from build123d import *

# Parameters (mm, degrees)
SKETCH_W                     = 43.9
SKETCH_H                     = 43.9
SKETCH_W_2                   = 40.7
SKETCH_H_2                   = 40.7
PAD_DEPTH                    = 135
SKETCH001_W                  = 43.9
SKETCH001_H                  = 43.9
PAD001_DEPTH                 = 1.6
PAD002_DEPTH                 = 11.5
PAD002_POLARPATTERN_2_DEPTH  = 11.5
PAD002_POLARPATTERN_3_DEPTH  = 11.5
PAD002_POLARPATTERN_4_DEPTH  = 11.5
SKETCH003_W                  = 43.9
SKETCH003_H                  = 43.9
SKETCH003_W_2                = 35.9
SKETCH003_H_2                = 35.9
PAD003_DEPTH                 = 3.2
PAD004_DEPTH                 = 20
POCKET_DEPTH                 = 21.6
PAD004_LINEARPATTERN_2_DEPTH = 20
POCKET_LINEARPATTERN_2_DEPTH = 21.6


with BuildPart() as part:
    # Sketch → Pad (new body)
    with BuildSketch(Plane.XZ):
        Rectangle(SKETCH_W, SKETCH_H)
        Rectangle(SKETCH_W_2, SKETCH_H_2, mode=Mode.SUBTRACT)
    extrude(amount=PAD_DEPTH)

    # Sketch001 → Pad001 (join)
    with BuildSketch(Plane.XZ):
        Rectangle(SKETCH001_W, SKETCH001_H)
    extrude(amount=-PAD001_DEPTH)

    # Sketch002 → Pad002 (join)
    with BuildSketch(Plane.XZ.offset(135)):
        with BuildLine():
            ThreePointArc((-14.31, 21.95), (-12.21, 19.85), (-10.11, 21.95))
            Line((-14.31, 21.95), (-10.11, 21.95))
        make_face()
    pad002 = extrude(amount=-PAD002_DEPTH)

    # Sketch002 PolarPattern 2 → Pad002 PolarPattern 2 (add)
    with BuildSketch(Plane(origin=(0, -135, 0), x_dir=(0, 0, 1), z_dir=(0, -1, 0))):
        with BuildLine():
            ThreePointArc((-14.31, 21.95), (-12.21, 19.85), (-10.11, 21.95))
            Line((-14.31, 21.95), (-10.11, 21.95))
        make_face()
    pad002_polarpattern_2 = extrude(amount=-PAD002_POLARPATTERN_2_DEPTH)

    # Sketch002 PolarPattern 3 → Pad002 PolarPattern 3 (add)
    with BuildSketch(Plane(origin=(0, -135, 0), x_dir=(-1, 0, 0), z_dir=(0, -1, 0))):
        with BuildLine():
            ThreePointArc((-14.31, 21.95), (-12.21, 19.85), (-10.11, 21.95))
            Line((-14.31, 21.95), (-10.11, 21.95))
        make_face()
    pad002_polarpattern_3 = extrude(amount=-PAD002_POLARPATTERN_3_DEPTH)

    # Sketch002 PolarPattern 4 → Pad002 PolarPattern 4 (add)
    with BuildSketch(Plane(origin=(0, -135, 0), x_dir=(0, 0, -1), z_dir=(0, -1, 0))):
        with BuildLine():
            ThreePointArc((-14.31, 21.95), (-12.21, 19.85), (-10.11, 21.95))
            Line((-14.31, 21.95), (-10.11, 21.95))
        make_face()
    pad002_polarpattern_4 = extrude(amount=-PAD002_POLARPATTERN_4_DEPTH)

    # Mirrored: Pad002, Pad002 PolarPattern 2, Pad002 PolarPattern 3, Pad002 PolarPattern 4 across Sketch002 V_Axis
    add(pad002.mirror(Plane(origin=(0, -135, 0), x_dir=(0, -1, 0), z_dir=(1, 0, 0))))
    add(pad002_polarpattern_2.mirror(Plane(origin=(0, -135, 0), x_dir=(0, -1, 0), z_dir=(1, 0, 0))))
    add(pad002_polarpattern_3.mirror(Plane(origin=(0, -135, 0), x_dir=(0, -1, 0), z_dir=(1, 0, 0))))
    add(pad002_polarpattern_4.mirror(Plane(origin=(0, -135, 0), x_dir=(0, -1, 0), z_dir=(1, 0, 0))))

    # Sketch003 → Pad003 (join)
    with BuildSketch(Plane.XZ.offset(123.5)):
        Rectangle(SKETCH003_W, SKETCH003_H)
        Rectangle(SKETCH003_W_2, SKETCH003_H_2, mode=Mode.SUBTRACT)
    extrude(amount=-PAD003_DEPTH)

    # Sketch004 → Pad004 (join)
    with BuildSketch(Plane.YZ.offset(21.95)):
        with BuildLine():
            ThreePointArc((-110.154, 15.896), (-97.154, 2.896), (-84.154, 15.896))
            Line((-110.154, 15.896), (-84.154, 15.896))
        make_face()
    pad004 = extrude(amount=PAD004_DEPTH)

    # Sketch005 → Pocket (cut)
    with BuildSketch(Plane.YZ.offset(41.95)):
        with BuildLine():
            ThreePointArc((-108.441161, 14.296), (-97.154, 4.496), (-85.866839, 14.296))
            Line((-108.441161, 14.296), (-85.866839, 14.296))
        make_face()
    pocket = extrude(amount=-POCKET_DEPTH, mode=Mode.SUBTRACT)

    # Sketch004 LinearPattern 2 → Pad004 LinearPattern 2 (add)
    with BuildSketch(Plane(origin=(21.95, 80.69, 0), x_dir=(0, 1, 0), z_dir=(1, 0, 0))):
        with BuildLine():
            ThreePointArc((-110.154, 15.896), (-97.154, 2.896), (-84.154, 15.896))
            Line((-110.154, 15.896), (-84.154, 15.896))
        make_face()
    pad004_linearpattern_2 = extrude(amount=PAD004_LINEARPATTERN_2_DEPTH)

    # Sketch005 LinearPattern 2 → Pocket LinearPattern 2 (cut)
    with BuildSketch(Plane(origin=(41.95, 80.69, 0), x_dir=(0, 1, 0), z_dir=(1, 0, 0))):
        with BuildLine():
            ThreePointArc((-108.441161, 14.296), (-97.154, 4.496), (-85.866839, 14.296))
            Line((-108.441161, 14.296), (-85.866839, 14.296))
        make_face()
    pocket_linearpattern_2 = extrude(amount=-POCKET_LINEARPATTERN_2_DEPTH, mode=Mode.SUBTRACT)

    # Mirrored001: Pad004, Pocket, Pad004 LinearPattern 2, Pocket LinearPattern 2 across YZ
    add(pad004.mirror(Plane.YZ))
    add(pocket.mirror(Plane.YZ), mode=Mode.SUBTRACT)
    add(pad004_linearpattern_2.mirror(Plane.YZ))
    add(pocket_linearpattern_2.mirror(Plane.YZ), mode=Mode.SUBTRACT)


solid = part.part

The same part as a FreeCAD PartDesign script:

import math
import FreeCAD as App
import Part
import Sketcher
from FreeCAD import Vector
Q = App.Units.Quantity


def add_polygon(sketch, points):
    """Adds a closed chain of lines whose ends are joined by coincident constraints."""
    first, n = sketch.GeometryCount, len(points)
    for a, b in zip(points, points[1:] + points[:1]):
        sketch.addGeometry(Part.LineSegment(App.Vector(*a, 0), App.Vector(*b, 0)), False)
    for i in range(n):
        sketch.addConstraint(Sketcher.Constraint("Coincident", first + i, 2, first + (i + 1) % n, 1))

doc = App.newDocument("Part")
body = doc.addObject("PartDesign::Body", "Body")

sketch1 = doc.addObject("Sketcher::SketchObject", "Sketch")
body.addObject(sketch1)
sketch1.AttachmentSupport = (doc.XZ_Plane, [""])
sketch1.MapMode = "FlatFace"
add_polygon(sketch1, [(-22, 22), (-22, -22), (22, -22), (22, 22)])
add_polygon(sketch1, [(20, -20), (-20, -20), (-20, 20), (20, 20)])
sketch1.addConstraint(Sketcher.Constraint("Vertical", 0))
sketch1.addConstraint(Sketcher.Constraint("Horizontal", 1))
sketch1.addConstraint(Sketcher.Constraint("Vertical", 2))
sketch1.addConstraint(Sketcher.Constraint("Horizontal", 3))
sketch1.addConstraint(Sketcher.Constraint("Horizontal", 4))
sketch1.addConstraint(Sketcher.Constraint("Vertical", 5))
sketch1.addConstraint(Sketcher.Constraint("Horizontal", 6))
sketch1.addConstraint(Sketcher.Constraint("Vertical", 7))
sketch1.addConstraint(Sketcher.Constraint("Symmetric", 0, 2, 2, 2, -1, 1))
sketch1.addConstraint(Sketcher.Constraint("Symmetric", 4, 2, 6, 2, -1, 1))
sketch1.addConstraint(Sketcher.Constraint("Equal", 3, 0))
sketch1.addConstraint(Sketcher.Constraint("Equal", 6, 5))
sketch1.addConstraint(Sketcher.Constraint("DistanceX", 1, 1, 1, 2, Q("43.9 mm")))
sketch1.addConstraint(Sketcher.Constraint("DistanceX", 4, 2, 4, 1, Q("40.7 mm")))
pad1 = doc.addObject("PartDesign::Pad", "Pad")
body.addObject(pad1)
pad1.Profile = sketch1
pad1.Length = 135

sketch2 = doc.addObject("Sketcher::SketchObject", "Sketch001")
body.addObject(sketch2)
sketch2.AttachmentSupport = (doc.XZ_Plane, [""])
sketch2.MapMode = "FlatFace"
add_polygon(sketch2, [(-22, 22), (-22, -22), (22, -22), (22, 22)])
sketch2.addConstraint(Sketcher.Constraint("Vertical", 0))
sketch2.addConstraint(Sketcher.Constraint("Horizontal", 1))
sketch2.addConstraint(Sketcher.Constraint("Vertical", 2))
sketch2.addConstraint(Sketcher.Constraint("Horizontal", 3))
sketch2.addConstraint(Sketcher.Constraint("Symmetric", 0, 2, 2, 2, -1, 1))
sketch2.addConstraint(Sketcher.Constraint("Equal", 3, 0))
sketch2.addConstraint(Sketcher.Constraint("DistanceX", 1, 1, 1, 2, Q("43.9 mm")))
pad2 = doc.addObject("PartDesign::Pad", "Pad001")
body.addObject(pad2)
pad2.Profile = sketch2
pad2.Length = 1.6
pad2.Reversed = True

sketch3 = doc.addObject("Sketcher::SketchObject", "Sketch002")
body.addObject(sketch3)
sketch3.AttachmentSupport = (doc.XZ_Plane, [""])
sketch3.MapMode = "FlatFace"
sketch3.AttachmentOffset = App.Placement(Vector(0, 0, 135), App.Rotation())
sketch3.addGeometry(Part.ArcOfCircle(Part.Circle(Vector(-12.2, 21.9, 0), Vector(0, 0, 1), 2.1), math.radians(180), math.radians(360)), False)
sketch3.addGeometry(Part.LineSegment(Vector(-10.1, 21.9, 0), Vector(-14.3, 21.9, 0)), False)
sketch3.addConstraint(Sketcher.Constraint("Coincident", 0, 1, 1, 2))
sketch3.addConstraint(Sketcher.Constraint("Coincident", 1, 1, 0, 2))
sketch3.addConstraint(Sketcher.Constraint("Horizontal", 1))
sketch3.addConstraint(Sketcher.Constraint("Radius", 0, Q("2.1 mm")))
sketch3.addConstraint(Sketcher.Constraint("DistanceX", 0, 3, -1, 1, Q("12.21 mm")))
sketch3.addConstraint(Sketcher.Constraint("DistanceY", -1, 1, 0, 3, Q("21.95 mm")))
sketch3.addConstraint(Sketcher.Constraint("DistanceY", -1, 1, 0, 1, Q("21.95 mm")))
pad3 = doc.addObject("PartDesign::Pad", "Pad002")
body.addObject(pad3)
pad3.Profile = sketch3
pad3.Length = 11.5
pad3.Reversed = True

sketch4 = doc.addObject("Sketcher::SketchObject", "Sketch003")
body.addObject(sketch4)
sketch4.AttachmentSupport = (doc.XZ_Plane, [""])
sketch4.MapMode = "FlatFace"
sketch4.AttachmentOffset = App.Placement(Vector(0, 0, 135), App.Rotation())
sketch4.addGeometry(Part.ArcOfCircle(Part.Circle(Vector(-21.9, -12.2, 0), Vector(0, 0, 1), 2.1), math.radians(-90), math.radians(90)), False)
sketch4.addGeometry(Part.LineSegment(Vector(-21.9, -10.1, 0), Vector(-21.9, -14.3, 0)), False)
sketch4.addConstraint(Sketcher.Constraint("Coincident", 0, 1, 1, 2))
sketch4.addConstraint(Sketcher.Constraint("Coincident", 1, 1, 0, 2))
sketch4.addConstraint(Sketcher.Constraint("Vertical", 1))
sketch4.addConstraint(Sketcher.Constraint("Radius", 0, Q("2.1 mm")))
sketch4.addConstraint(Sketcher.Constraint("DistanceX", 0, 3, -1, 1, Q("21.95 mm")))
sketch4.addConstraint(Sketcher.Constraint("DistanceY", 0, 3, -1, 1, Q("12.21 mm")))
sketch4.addConstraint(Sketcher.Constraint("DistanceX", 0, 1, -1, 1, Q("21.95 mm")))
pad4 = doc.addObject("PartDesign::Pad", "Pad003")
body.addObject(pad4)
pad4.Profile = sketch4
pad4.Length = 11.5
pad4.Reversed = True

sketch5 = doc.addObject("Sketcher::SketchObject", "Sketch004")
body.addObject(sketch5)
sketch5.AttachmentSupport = (doc.XZ_Plane, [""])
sketch5.MapMode = "FlatFace"
sketch5.AttachmentOffset = App.Placement(Vector(0, 0, 135), App.Rotation())
sketch5.addGeometry(Part.ArcOfCircle(Part.Circle(Vector(12.2, -21.9, 0), Vector(0, 0, 1), 2.1), math.radians(0), math.radians(180)), False)
sketch5.addGeometry(Part.LineSegment(Vector(10.1, -21.9, 0), Vector(14.3, -21.9, 0)), False)
sketch5.addConstraint(Sketcher.Constraint("Coincident", 0, 1, 1, 2))
sketch5.addConstraint(Sketcher.Constraint("Coincident", 1, 1, 0, 2))
sketch5.addConstraint(Sketcher.Constraint("Horizontal", 1))
sketch5.addConstraint(Sketcher.Constraint("Radius", 0, Q("2.1 mm")))
sketch5.addConstraint(Sketcher.Constraint("DistanceX", -1, 1, 0, 3, Q("12.21 mm")))
sketch5.addConstraint(Sketcher.Constraint("DistanceY", 0, 3, -1, 1, Q("21.95 mm")))
sketch5.addConstraint(Sketcher.Constraint("DistanceY", 0, 1, -1, 1, Q("21.95 mm")))
pad5 = doc.addObject("PartDesign::Pad", "Pad004")
body.addObject(pad5)
pad5.Profile = sketch5
pad5.Length = 11.5
pad5.Reversed = True

sketch6 = doc.addObject("Sketcher::SketchObject", "Sketch005")
body.addObject(sketch6)
sketch6.AttachmentSupport = (doc.XZ_Plane, [""])
sketch6.MapMode = "FlatFace"
sketch6.AttachmentOffset = App.Placement(Vector(0, 0, 135), App.Rotation())
sketch6.addGeometry(Part.ArcOfCircle(Part.Circle(Vector(21.9, 12.2, 0), Vector(0, 0, 1), 2.1), math.radians(90), math.radians(270)), False)
sketch6.addGeometry(Part.LineSegment(Vector(21.9, 10.1, 0), Vector(21.9, 14.3, 0)), False)
sketch6.addConstraint(Sketcher.Constraint("Coincident", 0, 1, 1, 2))
sketch6.addConstraint(Sketcher.Constraint("Coincident", 1, 1, 0, 2))
sketch6.addConstraint(Sketcher.Constraint("Vertical", 1))
sketch6.addConstraint(Sketcher.Constraint("Radius", 0, Q("2.1 mm")))
sketch6.addConstraint(Sketcher.Constraint("DistanceX", -1, 1, 0, 3, Q("21.95 mm")))
sketch6.addConstraint(Sketcher.Constraint("DistanceY", -1, 1, 0, 3, Q("12.21 mm")))
sketch6.addConstraint(Sketcher.Constraint("DistanceX", -1, 1, 0, 1, Q("21.95 mm")))
pad6 = doc.addObject("PartDesign::Pad", "Pad005")
body.addObject(pad6)
pad6.Profile = sketch6
pad6.Length = 11.5
pad6.Reversed = True
doc.recompute()

mirrored = doc.addObject("PartDesign::Mirrored", "Mirrored")
body.addObject(mirrored)
mirrored.Originals = [pad3, pad4, pad5, pad6]
mirrored.MirrorPlane = (doc.YZ_Plane, [""])
body.Tip = mirrored

sketch7 = doc.addObject("Sketcher::SketchObject", "Sketch006")
body.addObject(sketch7)
sketch7.AttachmentSupport = (doc.XZ_Plane, [""])
sketch7.MapMode = "FlatFace"
sketch7.AttachmentOffset = App.Placement(Vector(0, 0, 123.5), App.Rotation())
add_polygon(sketch7, [(-22, 22), (-22, -22), (22, -22), (22, 22)])
add_polygon(sketch7, [(18, -18), (-18, -18), (-18, 18), (18, 18)])
sketch7.addConstraint(Sketcher.Constraint("Vertical", 0))
sketch7.addConstraint(Sketcher.Constraint("Horizontal", 1))
sketch7.addConstraint(Sketcher.Constraint("Vertical", 2))
sketch7.addConstraint(Sketcher.Constraint("Horizontal", 3))
sketch7.addConstraint(Sketcher.Constraint("Horizontal", 4))
sketch7.addConstraint(Sketcher.Constraint("Vertical", 5))
sketch7.addConstraint(Sketcher.Constraint("Horizontal", 6))
sketch7.addConstraint(Sketcher.Constraint("Vertical", 7))
sketch7.addConstraint(Sketcher.Constraint("Symmetric", 0, 2, 2, 2, -1, 1))
sketch7.addConstraint(Sketcher.Constraint("Symmetric", 4, 2, 6, 2, -1, 1))
sketch7.addConstraint(Sketcher.Constraint("Equal", 3, 0))
sketch7.addConstraint(Sketcher.Constraint("Equal", 6, 5))
sketch7.addConstraint(Sketcher.Constraint("DistanceX", 1, 1, 1, 2, Q("43.9 mm")))
sketch7.addConstraint(Sketcher.Constraint("DistanceX", 4, 2, 4, 1, Q("35.9 mm")))
pad7 = doc.addObject("PartDesign::Pad", "Pad006")
body.addObject(pad7)
pad7.Profile = sketch7
pad7.Length = 3.2
pad7.Reversed = True

sketch8 = doc.addObject("Sketcher::SketchObject", "Sketch007")
body.addObject(sketch8)
sketch8.AttachmentSupport = (doc.YZ_Plane, [""])
sketch8.MapMode = "FlatFace"
sketch8.AttachmentOffset = App.Placement(Vector(0, 0, 21.95), App.Rotation())
sketch8.addGeometry(Part.ArcOfCircle(Part.Circle(Vector(-97, 16, 0), Vector(0, 0, 1), 13), math.radians(180), math.radians(360)), False)
sketch8.addGeometry(Part.LineSegment(Vector(-84, 16, 0), Vector(-110, 16, 0)), False)
sketch8.addConstraint(Sketcher.Constraint("Coincident", 0, 1, 1, 2))
sketch8.addConstraint(Sketcher.Constraint("Coincident", 1, 1, 0, 2))
sketch8.addConstraint(Sketcher.Constraint("Horizontal", 1))
sketch8.addConstraint(Sketcher.Constraint("Radius", 0, Q("13 mm")))
sketch8.addConstraint(Sketcher.Constraint("DistanceX", 0, 3, -1, 1, Q("97.154 mm")))
sketch8.addConstraint(Sketcher.Constraint("DistanceY", -1, 1, 0, 3, Q("15.896 mm")))
sketch8.addConstraint(Sketcher.Constraint("DistanceY", -1, 1, 0, 1, Q("15.896 mm")))
pad8 = doc.addObject("PartDesign::Pad", "Pad007")
body.addObject(pad8)
pad8.Profile = sketch8
pad8.Length = 20

sketch9 = doc.addObject("Sketcher::SketchObject", "Sketch008")
body.addObject(sketch9)
sketch9.AttachmentSupport = (doc.YZ_Plane, [""])
sketch9.MapMode = "FlatFace"
sketch9.AttachmentOffset = App.Placement(Vector(0, 0, 41.95), App.Rotation())
sketch9.addGeometry(Part.ArcOfCircle(Part.Circle(Vector(-97, 16, 0), Vector(0, 0, 1), 11), math.radians(-172), math.radians(-8)), False)
sketch9.addGeometry(Part.LineSegment(Vector(-86, 14, 0), Vector(-108, 14, 0)), False)
sketch9.addConstraint(Sketcher.Constraint("Coincident", 0, 1, 1, 2))
sketch9.addConstraint(Sketcher.Constraint("Coincident", 1, 1, 0, 2))
sketch9.addConstraint(Sketcher.Constraint("Horizontal", 1))
sketch9.addConstraint(Sketcher.Constraint("Radius", 0, Q("11.4 mm")))
sketch9.addConstraint(Sketcher.Constraint("DistanceY", 0, 1, 0, 3, Q("1.6 mm")))
sketch9.addConstraint(Sketcher.Constraint("DistanceX", 0, 3, -1, 1, Q("97.154 mm")))
sketch9.addConstraint(Sketcher.Constraint("DistanceY", -1, 1, 0, 3, Q("15.896 mm")))
pocket1 = doc.addObject("PartDesign::Pocket", "Pocket")
body.addObject(pocket1)
pocket1.Profile = sketch9
pocket1.Length = 21.6

sketch10 = doc.addObject("Sketcher::SketchObject", "Sketch009")
body.addObject(sketch10)
sketch10.AttachmentSupport = (doc.YZ_Plane, [""])
sketch10.MapMode = "FlatFace"
sketch10.AttachmentOffset = App.Placement(Vector(0, 0, 21.95), App.Rotation())
sketch10.addGeometry(Part.ArcOfCircle(Part.Circle(Vector(-16, 16, 0), Vector(0, 0, 1), 13), math.radians(180), math.radians(360)), False)
sketch10.addGeometry(Part.LineSegment(Vector(-3, 16, 0), Vector(-29, 16, 0)), False)
sketch10.addConstraint(Sketcher.Constraint("Coincident", 0, 1, 1, 2))
sketch10.addConstraint(Sketcher.Constraint("Coincident", 1, 1, 0, 2))
sketch10.addConstraint(Sketcher.Constraint("Horizontal", 1))
sketch10.addConstraint(Sketcher.Constraint("Radius", 0, Q("13 mm")))
sketch10.addConstraint(Sketcher.Constraint("DistanceX", 0, 3, -1, 1, Q("16.464 mm")))
sketch10.addConstraint(Sketcher.Constraint("DistanceY", -1, 1, 0, 3, Q("15.896 mm")))
sketch10.addConstraint(Sketcher.Constraint("DistanceY", -1, 1, 0, 1, Q("15.896 mm")))
pad9 = doc.addObject("PartDesign::Pad", "Pad008")
body.addObject(pad9)
pad9.Profile = sketch10
pad9.Length = 20

sketch11 = doc.addObject("Sketcher::SketchObject", "Sketch010")
body.addObject(sketch11)
sketch11.AttachmentSupport = (doc.YZ_Plane, [""])
sketch11.MapMode = "FlatFace"
sketch11.AttachmentOffset = App.Placement(Vector(0, 0, 41.95), App.Rotation())
sketch11.addGeometry(Part.ArcOfCircle(Part.Circle(Vector(-16, 16, 0), Vector(0, 0, 1), 11), math.radians(-172), math.radians(-8)), False)
sketch11.addGeometry(Part.LineSegment(Vector(-5, 14, 0), Vector(-28, 14, 0)), False)
sketch11.addConstraint(Sketcher.Constraint("Coincident", 0, 1, 1, 2))
sketch11.addConstraint(Sketcher.Constraint("Coincident", 1, 1, 0, 2))
sketch11.addConstraint(Sketcher.Constraint("Horizontal", 1))
sketch11.addConstraint(Sketcher.Constraint("Radius", 0, Q("11.4 mm")))
sketch11.addConstraint(Sketcher.Constraint("DistanceY", 0, 1, 0, 3, Q("1.6 mm")))
sketch11.addConstraint(Sketcher.Constraint("DistanceX", 0, 3, -1, 1, Q("16.464 mm")))
sketch11.addConstraint(Sketcher.Constraint("DistanceY", -1, 1, 0, 3, Q("15.896 mm")))
pocket2 = doc.addObject("PartDesign::Pocket", "Pocket001")
body.addObject(pocket2)
pocket2.Profile = sketch11
pocket2.Length = 21.6
doc.recompute()

mirrored2 = doc.addObject("PartDesign::Mirrored", "Mirrored001")
body.addObject(mirrored2)
mirrored2.Originals = [pad8, pocket1, pad9, pocket2]
mirrored2.MirrorPlane = (doc.YZ_Plane, [""])
body.Tip = mirrored2

doc.recompute()
